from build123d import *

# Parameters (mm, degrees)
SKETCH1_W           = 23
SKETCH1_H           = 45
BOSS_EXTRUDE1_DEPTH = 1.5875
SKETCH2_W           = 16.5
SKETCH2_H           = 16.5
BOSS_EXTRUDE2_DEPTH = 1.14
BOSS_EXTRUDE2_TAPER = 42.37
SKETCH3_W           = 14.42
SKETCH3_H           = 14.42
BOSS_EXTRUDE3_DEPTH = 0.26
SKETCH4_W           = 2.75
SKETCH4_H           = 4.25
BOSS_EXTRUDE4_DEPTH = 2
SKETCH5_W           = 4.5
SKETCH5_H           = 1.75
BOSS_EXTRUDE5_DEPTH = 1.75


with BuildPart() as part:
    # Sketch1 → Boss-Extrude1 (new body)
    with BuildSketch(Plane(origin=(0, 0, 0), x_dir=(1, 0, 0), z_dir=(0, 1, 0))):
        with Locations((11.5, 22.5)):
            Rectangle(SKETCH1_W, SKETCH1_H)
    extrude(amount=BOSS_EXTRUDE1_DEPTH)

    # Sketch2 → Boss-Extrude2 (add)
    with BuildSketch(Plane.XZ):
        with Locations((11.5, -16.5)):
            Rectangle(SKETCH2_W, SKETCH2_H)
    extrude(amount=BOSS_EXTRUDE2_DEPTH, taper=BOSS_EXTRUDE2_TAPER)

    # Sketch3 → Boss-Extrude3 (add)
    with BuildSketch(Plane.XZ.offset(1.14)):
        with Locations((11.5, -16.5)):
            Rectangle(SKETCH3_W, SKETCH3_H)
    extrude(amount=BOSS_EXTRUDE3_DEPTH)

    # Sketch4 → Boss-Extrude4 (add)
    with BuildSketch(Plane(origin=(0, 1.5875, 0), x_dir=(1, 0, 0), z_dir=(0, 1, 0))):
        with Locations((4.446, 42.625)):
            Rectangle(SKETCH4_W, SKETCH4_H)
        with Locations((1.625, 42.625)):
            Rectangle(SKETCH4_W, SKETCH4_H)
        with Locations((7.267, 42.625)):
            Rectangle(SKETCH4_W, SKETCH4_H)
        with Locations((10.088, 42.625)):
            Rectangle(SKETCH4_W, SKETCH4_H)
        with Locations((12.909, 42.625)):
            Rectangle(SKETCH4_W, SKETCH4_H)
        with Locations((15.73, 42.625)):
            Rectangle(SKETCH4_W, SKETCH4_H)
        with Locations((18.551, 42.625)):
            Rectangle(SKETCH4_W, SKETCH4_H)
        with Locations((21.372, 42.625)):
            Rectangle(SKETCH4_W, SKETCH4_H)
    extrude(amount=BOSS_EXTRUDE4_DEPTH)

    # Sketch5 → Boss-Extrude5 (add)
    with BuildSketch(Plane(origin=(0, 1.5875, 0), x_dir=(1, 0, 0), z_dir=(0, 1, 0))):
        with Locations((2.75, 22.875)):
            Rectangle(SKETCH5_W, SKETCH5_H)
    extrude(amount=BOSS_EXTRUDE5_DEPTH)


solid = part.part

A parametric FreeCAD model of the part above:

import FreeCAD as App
import Part
import Sketcher

V = App.Vector
Q = App.Units.Quantity

doc = App.newDocument("Part")
body = doc.addObject("PartDesign::Body", "Body")

# Sketch on XZ plane
sketch1 = body.newObject("Sketcher::SketchObject", "Sketch")
sketch1.AttachmentSupport = (doc.getObject("XZ_Plane"), [""])
sketch1.MapMode = "FlatFace"
sketch1.addGeometry(Part.LineSegment(V(0, -45, 0), V(0, 0, 0)), False)
sketch1.addGeometry(Part.LineSegment(V(0, 0, 0), V(23, 0, 0)), False)
sketch1.addGeometry(Part.LineSegment(V(23, 0, 0), V(23, -45, 0)), False)
sketch1.addGeometry(Part.LineSegment(V(23, -45, 0), V(0, -45, 0)), False)
sketch1.addConstraint(Sketcher.Constraint("Coincident", 0, 2, 1, 1))
sketch1.addConstraint(Sketcher.Constraint("Coincident", 1, 2, 2, 1))
sketch1.addConstraint(Sketcher.Constraint("Coincident", 2, 2, 3, 1))
sketch1.addConstraint(Sketcher.Constraint("Coincident", 3, 2, 0, 1))
sketch1.addConstraint(Sketcher.Constraint("Vertical", 0))
sketch1.addConstraint(Sketcher.Constraint("Horizontal", 1))
sketch1.addConstraint(Sketcher.Constraint("Vertical", 2))
sketch1.addConstraint(Sketcher.Constraint("Horizontal", 3))
sketch1.addConstraint(Sketcher.Constraint("Coincident", 0, 2, -1, 1))
sketch1.addConstraint(Sketcher.Constraint("DistanceX", 1, 1, 1, 2, Q("23 mm")))
sketch1.addConstraint(Sketcher.Constraint("DistanceY", 0, 1, 0, 2, Q("45 mm")))
pad1 = body.newObject("PartDesign::Pad", "Pad")
pad1.Profile = sketch1
pad1.Length = 1.5875
pad1.Reversed = True

# Sketch on XZ plane
sketch2 = body.newObject("Sketcher::SketchObject", "Sketch001")
sketch2.AttachmentSupport = (doc.getObject("XZ_Plane"), [""])
sketch2.MapMode = "FlatFace"
sketch2.addGeometry(Part.LineSegment(V(3.25, -8.25, 0), V(3.25, -24.75, 0)), False)
sketch2.addGeometry(Part.LineSegment(V(3.25, -24.75, 0), V(19.75, -24.75, 0)), False)
sketch2.addGeometry(Part.LineSegment(V(19.75, -24.75, 0), V(19.75, -8.25, 0)), False)
sketch2.addGeometry(Part.LineSegment(V(19.75, -8.25, 0), V(3.25, -8.25, 0)), False)
sketch2.addConstraint(Sketcher.Constraint("Coincident", 0, 2, 1, 1))
sketch2.addConstraint(Sketcher.Constraint("Coincident", 1, 2, 2, 1))
sketch2.addConstraint(Sketcher.Constraint("Coincident", 2, 2, 3, 1))
sketch2.addConstraint(Sketcher.Constraint("Coincident", 3, 2, 0, 1))
sketch2.addConstraint(Sketcher.Constraint("Vertical", 0))
sketch2.addConstraint(Sketcher.Constraint("Horizontal", 1))
sketch2.addConstraint(Sketcher.Constraint("Vertical", 2))
sketch2.addConstraint(Sketcher.Constraint("Horizontal", 3))
sketch2.addConstraint(Sketcher.Constraint("Equal", 3, 0))
sketch2.addConstraint(Sketcher.Constraint("DistanceX", 1, 1, 1, 2, Q("16.5 mm")))
sketch2.addConstraint(Sketcher.Constraint("DistanceX", -1, 1, 0, 2, Q("3.25 mm")))
sketch2.addConstraint(Sketcher.Constraint("DistanceY", 0, 2, -1, 1, Q("24.75 mm")))
pad2 = body.newObject("PartDesign::Pad", "Pad001")
pad2.Profile = sketch2
pad2.Length = 1.14
pad2.TaperAngle = -42.37

# Sketch on XZ plane
sketch3 = body.newObject("Sketcher::SketchObject", "Sketch002")
sketch3.AttachmentSupport = (doc.getObject("XZ_Plane"), [""])
sketch3.MapMode = "FlatFace"
sketch3.AttachmentOffset = App.Placement(V(0, 0, 1.14), App.Rotation())
sketch3.addGeometry(Part.LineSegment(V(4.29, -9.29, 0), V(4.29, -23.71, 0)), False)
sketch3.addGeometry(Part.LineSegment(V(4.29, -23.71, 0), V(18.71, -23.71, 0)), False)
sketch3.addGeometry(Part.LineSegment(V(18.71, -23.71, 0), V(18.71, -9.29, 0)), False)
sketch3.addGeometry(Part.LineSegment(V(18.71, -9.29, 0), V(4.29, -9.29, 0)), False)
sketch3.addConstraint(Sketcher.Constraint("Coincident", 0, 2, 1, 1))
sketch3.addConstraint(Sketcher.Constraint("Coincident", 1, 2, 2, 1))
sketch3.addConstraint(Sketcher.Constraint("Coincident", 2, 2, 3, 1))
sketch3.addConstraint(Sketcher.Constraint("Coincident", 3, 2, 0, 1))
sketch3.addConstraint(Sketcher.Constraint("Vertical", 0))
sketch3.addConstraint(Sketcher.Constraint("Horizontal", 1))
sketch3.addConstraint(Sketcher.Constraint("Vertical", 2))
sketch3.addConstraint(Sketcher.Constraint("Horizontal", 3))
sketch3.addConstraint(Sketcher.Constraint("Equal", 3, 0))
sketch3.addConstraint(Sketcher.Constraint("DistanceX", 1, 1, 1, 2, Q("14.42 mm")))
sketch3.addConstraint(Sketcher.Constraint("DistanceX", -1, 1, 0, 2, Q("4.29 mm")))
sketch3.addConstraint(Sketcher.Constraint("DistanceY", 0, 2, -1, 1, Q("23.71 mm")))
pad3 = body.newObject("PartDesign::Pad", "Pad002")
pad3.Profile = sketch3
pad3.Length = 0.26

# Sketch on XZ plane
sketch4 = body.newObject("Sketcher::SketchObject", "Sketch003")
sketch4.AttachmentSupport = (doc.getObject("XZ_Plane"), [""])
sketch4.MapMode = "FlatFace"
sketch4.AttachmentOffset = App.Placement(V(0, 0, -1.5875), App.Rotation())
sketch4.addGeometry(Part.LineSegment(V(3.071, -44.75, 0), V(3.071, -40.5, 0)), False)
sketch4.addGeometry(Part.LineSegment(V(3.071, -40.5, 0), V(5.821, -40.5, 0)), False)
sketch4.addGeometry(Part.LineSegment(V(5.821, -40.5, 0), V(5.821, -44.75, 0)), False)
sketch4.addGeometry(Part.LineSegment(V(5.821, -44.75, 0), V(3.071, -44.75, 0)), False)
sketch4.addGeometry(Part.LineSegment(V(0.25, -44.75, 0), V(0.25, -40.5, 0)), False)
sketch4.addGeometry(Part.LineSegment(V(0.25, -40.5, 0), V(3, -40.5, 0)), False)
sketch4.addGeometry(Part.LineSegment(V(3, -40.5, 0), V(3, -44.75, 0)), False)
sketch4.addGeometry(Part.LineSegment(V(3, -44.75, 0), V(0.25, -44.75, 0)), False)
sketch4.addGeometry(Part.LineSegment(V(5.892, -44.75, 0), V(5.892, -40.5, 0)), False)
sketch4.addGeometry(Part.LineSegment(V(5.892, -40.5, 0), V(8.642, -40.5, 0)), False)
sketch4.addGeometry(Part.LineSegment(V(8.642, -40.5, 0), V(8.642, -44.75, 0)), False)
sketch4.addGeometry(Part.LineSegment(V(8.642, -44.75, 0), V(5.892, -44.75, 0)), False)
sketch4.addGeometry(Part.LineSegment(V(8.713, -44.75, 0), V(8.713, -40.5, 0)), False)
sketch4.addGeometry(Part.LineSegment(V(8.713, -40.5, 0), V(11.463, -40.5, 0)), False)
sketch4.addGeometry(Part.LineSegment(V(11.463, -40.5, 0), V(11.463, -44.75, 0)), False)
sketch4.addGeometry(Part.LineSegment(V(11.463, -44.75, 0), V(8.713, -44.75, 0)), False)
sketch4.addGeometry(Part.LineSegment(V(11.534, -44.75, 0), V(11.534, -40.5, 0)), False)
sketch4.addGeometry(Part.LineSegment(V(11.534, -40.5, 0), V(14.284, -40.5, 0)), False)
sketch4.addGeometry(Part.LineSegment(V(14.284, -40.5, 0), V(14.284, -44.75, 0)), False)
sketch4.addGeometry(Part.LineSegment(V(14.284, -44.75, 0), V(11.534, -44.75, 0)), False)
sketch4.addGeometry(Part.LineSegment(V(14.355, -44.75, 0), V(14.355, -40.5, 0)), False)
sketch4.addGeometry(Part.LineSegment(V(14.355, -40.5, 0), V(17.105, -40.5, 0)), False)
sketch4.addGeometry(Part.LineSegment(V(17.105, -40.5, 0), V(17.105, -44.75, 0)), False)
sketch4.addGeometry(Part.LineSegment(V(17.105, -44.75, 0), V(14.355, -44.75, 0)), False)
sketch4.addGeometry(Part.LineSegment(V(17.176, -44.75, 0), V(17.176, -40.5, 0)), False)
sketch4.addGeometry(Part.LineSegment(V(17.176, -40.5, 0), V(19.926, -40.5, 0)), False)
sketch4.addGeometry(Part.LineSegment(V(19.926, -40.5, 0), V(19.926, -44.75, 0)), False)
sketch4.addGeometry(Part.LineSegment(V(19.926, -44.75, 0), V(17.176, -44.75, 0)), False)
sketch4.addGeometry(Part.LineSegment(V(19.997, -44.75, 0), V(19.997, -40.5, 0)), False)
sketch4.addGeometry(Part.LineSegment(V(19.997, -40.5, 0), V(22.747, -40.5, 0)), False)
sketch4.addGeometry(Part.LineSegment(V(22.747, -40.5, 0), V(22.747, -44.75, 0)), False)
sketch4.addGeometry(Part.LineSegment(V(22.747, -44.75, 0), V(19.997, -44.75, 0)), False)
sketch4.addConstraint(Sketcher.Constraint("Coincident", 0, 2, 1, 1))
sketch4.addConstraint(Sketcher.Constraint("Coincident", 1, 2, 2, 1))
sketch4.addConstraint(Sketcher.Constraint("Coincident", 2, 2, 3, 1))
sketch4.addConstraint(Sketcher.Constraint("Coincident", 3, 2, 0, 1))
sketch4.addConstraint(Sketcher.Constraint("Coincident", 4, 2, 5, 1))
sketch4.addConstraint(Sketcher.Constraint("Coincident", 5, 2, 6, 1))
sketch4.addConstraint(Sketcher.Constraint("Coincident", 6, 2, 7, 1))
sketch4.addConstraint(Sketcher.Constraint("Coincident", 7, 2, 4, 1))
sketch4.addConstraint(Sketcher.Constraint("Coincident", 8, 2, 9, 1))
sketch4.addConstraint(Sketcher.Constraint("Coincident", 9, 2, 10, 1))
sketch4.addConstraint(Sketcher.Constraint("Coincident", 10, 2, 11, 1))
sketch4.addConstraint(Sketcher.Constraint("Coincident", 11, 2, 8, 1))
sketch4.addConstraint(Sketcher.Constraint("Coincident", 12, 2, 13, 1))
sketch4.addConstraint(Sketcher.Constraint("Coincident", 13, 2, 14, 1))
sketch4.addConstraint(Sketcher.Constraint("Coincident", 14, 2, 15, 1))
sketch4.addConstraint(Sketcher.Constraint("Coincident", 15, 2, 12, 1))
sketch4.addConstraint(Sketcher.Constraint("Coincident", 16, 2, 17, 1))
sketch4.addConstraint(Sketcher.Constraint("Coincident", 17, 2, 18, 1))
sketch4.addConstraint(Sketcher.Constraint("Coincident", 18, 2, 19, 1))
sketch4.addConstraint(Sketcher.Constraint("Coincident", 19, 2, 16, 1))
sketch4.addConstraint(Sketcher.Constraint("Coincident", 20, 2, 21, 1))
sketch4.addConstraint(Sketcher.Constraint("Coincident", 21, 2, 22, 1))
sketch4.addConstraint(Sketcher.Constraint("Coincident", 22, 2, 23, 1))
sketch4.addConstraint(Sketcher.Constraint("Coincident", 23, 2, 20, 1))
sketch4.addConstraint(Sketcher.Constraint("Coincident", 24, 2, 25, 1))
sketch4.addConstraint(Sketcher.Constraint("Coincident", 25, 2, 26, 1))
sketch4.addConstraint(Sketcher.Constraint("Coincident", 26, 2, 27, 1))
sketch4.addConstraint(Sketcher.Constraint("Coincident", 27, 2, 24, 1))
sketch4.addConstraint(Sketcher.Constraint("Coincident", 28, 2, 29, 1))
sketch4.addConstraint(Sketcher.Constraint("Coincident", 29, 2, 30, 1))
sketch4.addConstraint(Sketcher.Constraint("Coincident", 30, 2, 31, 1))
sketch4.addConstraint(Sketcher.Constraint("Coincident", 31, 2, 28, 1))
sketch4.addConstraint(Sketcher.Constraint("Vertical", 0))
sketch4.addConstraint(Sketcher.Constraint("Horizontal", 1))
sketch4.addConstraint(Sketcher.Constraint("Vertical", 2))
sketch4.addConstraint(Sketcher.Constraint("Horizontal", 3))
sketch4.addConstraint(Sketcher.Constraint("Vertical", 4))
sketch4.addConstraint(Sketcher.Constraint("Horizontal", 5))
sketch4.addConstraint(Sketcher.Constraint("Vertical", 6))
sketch4.addConstraint(Sketcher.Constraint("Horizontal", 7))
sketch4.addConstraint(Sketcher.Constraint("Vertical", 8))
sketch4.addConstraint(Sketcher.Constraint("Horizontal", 9))
sketch4.addConstraint(Sketcher.Constraint("Vertical", 10))
sketch4.addConstraint(Sketcher.Constraint("Horizontal", 11))
sketch4.addConstraint(Sketcher.Constraint("Vertical", 12))
sketch4.addConstraint(Sketcher.Constraint("Horizontal", 13))
sketch4.addConstraint(Sketcher.Constraint("Vertical", 14))
sketch4.addConstraint(Sketcher.Constraint("Horizontal", 15))
sketch4.addConstraint(Sketcher.Constraint("Vertical", 16))
sketch4.addConstraint(Sketcher.Constraint("Horizontal", 17))
sketch4.addConstraint(Sketcher.Constraint("Vertical", 18))
sketch4.addConstraint(Sketcher.Constraint("Horizontal", 19))
sketch4.addConstraint(Sketcher.Constraint("Vertical", 20))
sketch4.addConstraint(Sketcher.Constraint("Horizontal", 21))
sketch4.addConstraint(Sketcher.Constraint("Vertical", 22))
sketch4.addConstraint(Sketcher.Constraint("Horizontal", 23))
sketch4.addConstraint(Sketcher.Constraint("Vertical", 24))
sketch4.addConstraint(Sketcher.Constraint("Horizontal", 25))
sketch4.addConstraint(Sketcher.Constraint("Vertical", 26))
sketch4.addConstraint(Sketcher.Constraint("Horizontal", 27))
sketch4.addConstraint(Sketcher.Constraint("Vertical", 28))
sketch4.addConstraint(Sketcher.Constraint("Horizontal", 29))
sketch4.addConstraint(Sketcher.Constraint("Vertical", 30))
sketch4.addConstraint(Sketcher.Constraint("Horizontal", 31))
sketch4.addConstraint(Sketcher.Constraint("Horizontal", 1, 2, 4, 2))
sketch4.addConstraint(Sketcher.Constraint("Horizontal", 3, 2, 6, 2))
sketch4.addConstraint(Sketcher.Constraint("Horizontal", 5, 2, 8, 2))
sketch4.addConstraint(Sketcher.Constraint("Horizontal", 7, 2, 10, 2))
sketch4.addConstraint(Sketcher.Constraint("Horizontal", 9, 2, 12, 2))
sketch4.addConstraint(Sketcher.Constraint("Horizontal", 11, 2, 14, 2))
sketch4.addConstraint(Sketcher.Constraint("Horizontal", 13, 2, 16, 2))
sketch4.addConstraint(Sketcher.Constraint("Horizontal", 15, 2, 18, 2))
sketch4.addConstraint(Sketcher.Constraint("Horizontal", 17, 2, 20, 2))
sketch4.addConstraint(Sketcher.Constraint("Horizontal", 19, 2, 22, 2))
sketch4.addConstraint(Sketcher.Constraint("Horizontal", 21, 2, 24, 2))
sketch4.addConstraint(Sketcher.Constraint("Horizontal", 23, 2, 26, 2))
sketch4.addConstraint(Sketcher.Constraint("Horizontal", 25, 2, 28, 2))
sketch4.addConstraint(Sketcher.Constraint("Horizontal", 27, 2, 30, 2))
sketch4.addConstraint(Sketcher.Constraint("Equal", 3, 5))
sketch4.addConstraint(Sketcher.Constraint("Equal", 7, 9))
sketch4.addConstraint(Sketcher.Constraint("Equal", 11, 13))
sketch4.addConstraint(Sketcher.Constraint("Equal", 15, 17))
sketch4.addConstraint(Sketcher.Constraint("Equal", 19, 21))
sketch4.addConstraint(Sketcher.Constraint("Equal", 23, 25))
sketch4.addConstraint(Sketcher.Constraint("Equal", 27, 29))
sketch4.addConstraint(Sketcher.Constraint("DistanceX", -1, 1, 5, 2, Q("3 mm")))
sketch4.addConstraint(Sketcher.Constraint("DistanceX", 1, 1, 1, 2, Q("2.75 mm")))
sketch4.addConstraint(Sketcher.Constraint("DistanceY", 0, 1, 0, 2, Q("4.25 mm")))
sketch4.addConstraint(Sketcher.Constraint("DistanceY", 0, 2, -1, 1, Q("40.5 mm")))
sketch4.addConstraint(Sketcher.Constraint("DistanceX", -1, 1, 0, 2, Q("3.071 mm")))
sketch4.addConstraint(Sketcher.Constraint("DistanceX", -1, 1, 8, 2, Q("5.892 mm")))
sketch4.addConstraint(Sketcher.Constraint("DistanceX", -1, 1, 12, 2, Q("8.713 mm")))
sketch4.addConstraint(Sketcher.Constraint("DistanceX", -1, 1, 16, 2, Q("11.534 mm")))
sketch4.addConstraint(Sketcher.Constraint("DistanceX", -1, 1, 20, 2, Q("14.355 mm")))
sketch4.addConstraint(Sketcher.Constraint("DistanceX", -1, 1, 24, 2, Q("17.176 mm")))
sketch4.addConstraint(Sketcher.Constraint("DistanceX", -1, 1, 28, 2, Q("19.997 mm")))
pad4 = body.newObject("PartDesign::Pad", "Pad003")
pad4.Profile = sketch4
pad4.Length = 2
pad4.Reversed = True

# Sketch on XZ plane
sketch5 = body.newObject("Sketcher::SketchObject", "Sketch004")
sketch5.AttachmentSupport = (doc.getObject("XZ_Plane"), [""])
sketch5.MapMode = "FlatFace"
sketch5.AttachmentOffset = App.Placement(V(0, 0, -1.5875), App.Rotation())
sketch5.addGeometry(Part.LineSegment(V(0.5, -23.75, 0), V(0.5, -22, 0)), False)
sketch5.addGeometry(Part.LineSegment(V(0.5, -22, 0), V(5, -22, 0)), False)
sketch5.addGeometry(Part.LineSegment(V(5, -22, 0), V(5, -23.75, 0)), False)
sketch5.addGeometry(Part.LineSegment(V(5, -23.75, 0), V(0.5, -23.75, 0)), False)
sketch5.addConstraint(Sketcher.Constraint("Coincident", 0, 2, 1, 1))
sketch5.addConstraint(Sketcher.Constraint("Coincident", 1, 2, 2, 1))
sketch5.addConstraint(Sketcher.Constraint("Coincident", 2, 2, 3, 1))
sketch5.addConstraint(Sketcher.Constraint("Coincident", 3, 2, 0, 1))
sketch5.addConstraint(Sketcher.Constraint("Vertical", 0))
sketch5.addConstraint(Sketcher.Constraint("Horizontal", 1))
sketch5.addConstraint(Sketcher.Constraint("Vertical", 2))
sketch5.addConstraint(Sketcher.Constraint("Horizontal", 3))
sketch5.addConstraint(Sketcher.Constraint("DistanceX", 1, 1, 1, 2, Q("4.5 mm")))
sketch5.addConstraint(Sketcher.Constraint("DistanceY", 0, 2, -1, 1, Q("22 mm")))
sketch5.addConstraint(Sketcher.Constraint("DistanceX", -1, 1, 1, 2, Q("5 mm")))
sketch5.addConstraint(Sketcher.Constraint("DistanceY", 0, 1, 0, 2, Q("1.75 mm")))
pad5 = body.newObject("PartDesign::Pad", "Pad004")
pad5.Profile = sketch5
pad5.Length = 1.75
pad5.Reversed = True

doc.recompute()
